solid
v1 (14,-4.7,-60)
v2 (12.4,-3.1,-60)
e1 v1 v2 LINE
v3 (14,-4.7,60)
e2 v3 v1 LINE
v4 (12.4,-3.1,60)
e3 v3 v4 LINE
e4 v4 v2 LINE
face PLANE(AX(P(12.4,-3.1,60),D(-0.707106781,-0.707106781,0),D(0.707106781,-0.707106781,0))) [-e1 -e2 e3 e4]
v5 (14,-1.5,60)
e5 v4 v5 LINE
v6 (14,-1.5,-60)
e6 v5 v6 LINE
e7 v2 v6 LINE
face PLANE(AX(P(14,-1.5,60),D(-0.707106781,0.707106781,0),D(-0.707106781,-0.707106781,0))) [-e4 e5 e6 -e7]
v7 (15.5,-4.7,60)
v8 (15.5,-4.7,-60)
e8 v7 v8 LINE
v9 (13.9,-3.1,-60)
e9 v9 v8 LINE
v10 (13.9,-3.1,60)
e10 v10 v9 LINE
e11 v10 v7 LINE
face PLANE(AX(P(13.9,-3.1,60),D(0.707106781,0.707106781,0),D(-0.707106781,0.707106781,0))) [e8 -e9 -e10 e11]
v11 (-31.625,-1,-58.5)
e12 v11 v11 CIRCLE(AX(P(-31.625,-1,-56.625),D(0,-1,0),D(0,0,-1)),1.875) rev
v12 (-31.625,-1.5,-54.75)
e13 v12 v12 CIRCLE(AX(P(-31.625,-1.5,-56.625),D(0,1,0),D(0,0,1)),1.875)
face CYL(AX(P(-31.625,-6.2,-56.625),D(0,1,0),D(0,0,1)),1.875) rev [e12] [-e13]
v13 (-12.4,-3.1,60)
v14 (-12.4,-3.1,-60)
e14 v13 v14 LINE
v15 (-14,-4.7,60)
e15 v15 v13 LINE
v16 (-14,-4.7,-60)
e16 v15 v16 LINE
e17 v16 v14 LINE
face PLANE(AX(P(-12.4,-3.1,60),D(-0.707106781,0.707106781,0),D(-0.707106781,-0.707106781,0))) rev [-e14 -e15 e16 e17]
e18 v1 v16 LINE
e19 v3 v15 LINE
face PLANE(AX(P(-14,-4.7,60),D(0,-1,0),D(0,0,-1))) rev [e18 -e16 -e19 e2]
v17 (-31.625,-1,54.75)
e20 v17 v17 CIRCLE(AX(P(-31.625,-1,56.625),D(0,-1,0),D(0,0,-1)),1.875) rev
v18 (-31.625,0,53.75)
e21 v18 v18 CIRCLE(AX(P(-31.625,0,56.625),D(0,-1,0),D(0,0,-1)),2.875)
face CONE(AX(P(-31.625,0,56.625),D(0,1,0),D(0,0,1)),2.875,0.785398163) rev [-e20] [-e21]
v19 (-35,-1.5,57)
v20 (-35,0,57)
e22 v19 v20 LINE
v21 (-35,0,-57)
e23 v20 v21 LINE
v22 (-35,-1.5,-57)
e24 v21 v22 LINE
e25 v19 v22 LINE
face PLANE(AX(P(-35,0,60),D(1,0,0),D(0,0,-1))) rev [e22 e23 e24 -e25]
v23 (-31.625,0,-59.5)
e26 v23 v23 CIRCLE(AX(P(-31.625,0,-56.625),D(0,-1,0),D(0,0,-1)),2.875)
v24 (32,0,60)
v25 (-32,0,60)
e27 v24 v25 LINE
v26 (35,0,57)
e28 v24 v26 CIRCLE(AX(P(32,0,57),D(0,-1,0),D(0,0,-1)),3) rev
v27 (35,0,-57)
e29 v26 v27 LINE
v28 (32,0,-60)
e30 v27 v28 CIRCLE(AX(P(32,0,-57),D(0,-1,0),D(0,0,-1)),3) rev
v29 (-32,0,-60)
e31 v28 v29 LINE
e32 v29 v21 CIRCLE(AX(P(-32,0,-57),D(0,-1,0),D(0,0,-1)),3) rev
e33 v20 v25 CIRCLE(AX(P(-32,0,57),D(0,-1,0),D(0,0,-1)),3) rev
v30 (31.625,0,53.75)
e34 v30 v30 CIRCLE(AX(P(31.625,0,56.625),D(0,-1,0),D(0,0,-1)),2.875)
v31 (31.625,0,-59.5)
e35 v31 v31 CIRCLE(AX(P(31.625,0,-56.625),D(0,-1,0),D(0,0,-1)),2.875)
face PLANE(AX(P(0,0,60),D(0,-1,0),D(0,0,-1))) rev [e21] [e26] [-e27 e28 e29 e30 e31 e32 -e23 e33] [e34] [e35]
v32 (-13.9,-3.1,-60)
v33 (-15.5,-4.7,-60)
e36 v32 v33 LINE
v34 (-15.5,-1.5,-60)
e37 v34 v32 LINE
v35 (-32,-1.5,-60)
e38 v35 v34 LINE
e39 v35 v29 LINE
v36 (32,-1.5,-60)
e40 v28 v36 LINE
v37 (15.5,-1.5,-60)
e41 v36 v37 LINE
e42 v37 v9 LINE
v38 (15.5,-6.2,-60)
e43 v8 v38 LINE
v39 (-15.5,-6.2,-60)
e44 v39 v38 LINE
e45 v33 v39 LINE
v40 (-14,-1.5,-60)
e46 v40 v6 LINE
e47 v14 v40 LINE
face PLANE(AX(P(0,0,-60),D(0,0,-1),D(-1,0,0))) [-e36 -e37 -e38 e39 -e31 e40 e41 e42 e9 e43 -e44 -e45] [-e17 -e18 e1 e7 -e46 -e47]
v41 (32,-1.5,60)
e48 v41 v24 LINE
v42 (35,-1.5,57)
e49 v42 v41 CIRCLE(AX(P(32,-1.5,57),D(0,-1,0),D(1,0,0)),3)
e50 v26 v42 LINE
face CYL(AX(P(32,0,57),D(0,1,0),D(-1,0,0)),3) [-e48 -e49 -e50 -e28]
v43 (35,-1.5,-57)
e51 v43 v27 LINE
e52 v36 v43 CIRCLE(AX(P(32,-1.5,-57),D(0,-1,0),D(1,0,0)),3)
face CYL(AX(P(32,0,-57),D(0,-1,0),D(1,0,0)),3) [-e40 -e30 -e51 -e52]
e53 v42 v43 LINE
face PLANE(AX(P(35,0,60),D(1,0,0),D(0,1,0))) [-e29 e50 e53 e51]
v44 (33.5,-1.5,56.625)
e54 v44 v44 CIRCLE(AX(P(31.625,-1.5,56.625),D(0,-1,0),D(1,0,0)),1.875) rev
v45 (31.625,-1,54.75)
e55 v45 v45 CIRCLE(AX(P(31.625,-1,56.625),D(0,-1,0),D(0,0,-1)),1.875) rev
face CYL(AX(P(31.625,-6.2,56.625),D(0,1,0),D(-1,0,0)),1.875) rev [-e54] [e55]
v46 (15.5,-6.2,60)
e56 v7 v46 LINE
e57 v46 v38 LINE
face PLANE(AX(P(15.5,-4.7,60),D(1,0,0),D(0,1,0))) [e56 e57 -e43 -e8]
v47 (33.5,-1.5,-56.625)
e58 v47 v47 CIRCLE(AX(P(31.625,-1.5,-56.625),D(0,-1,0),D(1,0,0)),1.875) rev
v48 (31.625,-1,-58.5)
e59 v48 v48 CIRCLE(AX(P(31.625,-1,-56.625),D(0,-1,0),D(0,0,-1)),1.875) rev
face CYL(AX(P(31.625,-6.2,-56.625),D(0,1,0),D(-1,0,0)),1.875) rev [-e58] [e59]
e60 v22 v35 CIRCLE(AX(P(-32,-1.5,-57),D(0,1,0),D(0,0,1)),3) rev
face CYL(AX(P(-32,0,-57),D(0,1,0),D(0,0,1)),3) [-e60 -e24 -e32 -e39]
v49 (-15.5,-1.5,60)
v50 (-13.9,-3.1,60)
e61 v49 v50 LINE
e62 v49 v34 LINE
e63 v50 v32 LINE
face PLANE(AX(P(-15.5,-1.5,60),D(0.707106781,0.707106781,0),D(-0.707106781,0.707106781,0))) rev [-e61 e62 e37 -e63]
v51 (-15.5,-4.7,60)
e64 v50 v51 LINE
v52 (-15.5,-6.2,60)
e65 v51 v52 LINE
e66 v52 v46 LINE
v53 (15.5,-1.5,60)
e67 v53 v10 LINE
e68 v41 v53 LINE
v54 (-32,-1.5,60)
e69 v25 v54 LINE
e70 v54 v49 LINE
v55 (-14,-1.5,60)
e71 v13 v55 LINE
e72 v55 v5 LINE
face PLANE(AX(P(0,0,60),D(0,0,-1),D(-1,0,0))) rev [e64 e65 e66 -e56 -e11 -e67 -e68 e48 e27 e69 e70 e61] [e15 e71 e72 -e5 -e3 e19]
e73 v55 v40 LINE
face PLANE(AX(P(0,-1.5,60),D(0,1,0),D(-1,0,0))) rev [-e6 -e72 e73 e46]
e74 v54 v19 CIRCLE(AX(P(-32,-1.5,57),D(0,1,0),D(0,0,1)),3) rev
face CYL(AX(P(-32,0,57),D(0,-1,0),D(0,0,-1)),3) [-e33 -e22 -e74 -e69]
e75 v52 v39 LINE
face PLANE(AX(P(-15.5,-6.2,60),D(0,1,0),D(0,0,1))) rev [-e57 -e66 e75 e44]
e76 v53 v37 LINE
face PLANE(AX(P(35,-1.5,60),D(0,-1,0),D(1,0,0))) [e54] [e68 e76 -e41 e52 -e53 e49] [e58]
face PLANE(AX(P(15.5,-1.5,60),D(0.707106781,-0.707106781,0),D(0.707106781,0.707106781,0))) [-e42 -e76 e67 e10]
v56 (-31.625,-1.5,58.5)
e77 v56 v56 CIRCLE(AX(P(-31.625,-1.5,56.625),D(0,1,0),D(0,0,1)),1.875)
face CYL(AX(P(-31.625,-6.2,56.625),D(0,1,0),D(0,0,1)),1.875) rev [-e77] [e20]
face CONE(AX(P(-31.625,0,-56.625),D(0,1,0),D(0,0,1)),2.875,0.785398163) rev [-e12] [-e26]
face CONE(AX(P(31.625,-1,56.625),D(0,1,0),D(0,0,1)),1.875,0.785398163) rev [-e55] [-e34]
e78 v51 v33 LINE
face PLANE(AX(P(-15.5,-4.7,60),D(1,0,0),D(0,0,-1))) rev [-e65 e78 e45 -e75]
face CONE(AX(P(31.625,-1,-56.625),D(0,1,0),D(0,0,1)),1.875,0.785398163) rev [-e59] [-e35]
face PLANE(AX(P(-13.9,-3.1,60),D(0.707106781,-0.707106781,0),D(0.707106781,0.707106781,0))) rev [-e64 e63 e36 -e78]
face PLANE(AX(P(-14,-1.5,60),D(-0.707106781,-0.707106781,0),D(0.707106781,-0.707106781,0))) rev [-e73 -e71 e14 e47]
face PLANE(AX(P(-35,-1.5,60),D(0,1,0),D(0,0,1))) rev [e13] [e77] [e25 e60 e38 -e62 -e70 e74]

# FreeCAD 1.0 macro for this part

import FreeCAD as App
import Part
import Sketcher

V = App.Vector


def edges_at(feature, points):
    """Names of the edges that pass closest to the given points."""
    edges = feature.Shape.Edges
    near = lambda p: min(range(len(edges)), key=lambda i: edges[i].distToShape(Part.Vertex(*p))[0])
    return sorted({f"Edge{near(p) + 1}" for p in points})


def add_polygon(sketch, points):
    """Adds a closed chain of lines whose ends are joined by coincident constraints."""
    first, n = sketch.GeometryCount, len(points)
    for a, b in zip(points, points[1:] + points[:1]):
        sketch.addGeometry(Part.LineSegment(App.Vector(*a, 0), App.Vector(*b, 0)), False)
    for i in range(n):
        sketch.addConstraint(Sketcher.Constraint("Coincident", first + i, 2, first + (i + 1) % n, 1))

doc = App.newDocument("Part")
params = doc.addObject("Spreadsheet::Sheet", "Params")
for row, (alias, value) in enumerate([
    ("sketch1_width", "35 mm"),
    ("sketch1_width2", "14 mm"),
    ("sketch1_width3", "19.5 mm"),
    ("sketch1_height", "1.5 mm"),
    ("pad1_length", "120 mm"),
    ("sketch2_diameter", "3.75 mm"),
    ("pocket1_length", "8.2 mm"),
    ("chamfer_size", "1 mm"),
    ("fillet_radius", "3 mm"),
], start=1):
    params.set(f"A{row}", alias)
    params.set(f"B{row}", "=" + value)
    params.setAlias(f"B{row}", alias)

body = doc.addObject("PartDesign::Body", "Body")

# Sketch on XY plane
sketch1 = body.newObject("Sketcher::SketchObject", "Sketch")
sketch1.AttachmentSupport = (doc.getObject("XY_Plane"), [""])
sketch1.MapMode = "FlatFace"
add_polygon(sketch1, [(0, 0), (-35, 0), (-35, -1.5), (-15.5, -1.5), (-13.9, -3.1), (-15.5, -4.7), (-15.5, -6.2), (0, -6.2), (0, -4.7), (-14, -4.7), (-12.4, -3.1), (-14, -1.5), (0, -1.5)])  # lines 0-12
sketch1.addConstraint([
    Sketcher.Constraint("Horizontal", 0),
    Sketcher.Constraint("Vertical", 1),
    Sketcher.Constraint("Horizontal", 2),
    Sketcher.Constraint("Vertical", 5),
    Sketcher.Constraint("Horizontal", 6),
    Sketcher.Constraint("Vertical", 7),
    Sketcher.Constraint("Horizontal", 8),
    Sketcher.Constraint("Horizontal", 11),
    Sketcher.Constraint("Vertical", 12),
    Sketcher.Constraint("Coincident", 12, 2, -1, 1),
    Sketcher.Constraint("PointOnObject", 6, 2, -2),
    Sketcher.Constraint("Perpendicular", 3, 4),
    Sketcher.Constraint("Parallel", 4, 9),
    Sketcher.Constraint("Perpendicular", 9, 10),
    Sketcher.Constraint("Horizontal", 4, 2, 7, 2),
    Sketcher.Constraint("Horizontal", 3, 2, 9, 2),
    Sketcher.Constraint("Horizontal", 2, 2, 10, 2),
    Sketcher.Constraint("Vertical", 2, 2, 4, 2),
    Sketcher.Constraint("Equal", 1, 5),
    Sketcher.Constraint("Equal", 3, 4),
    Sketcher.Constraint("DistanceX", 0, 2, 0, 1, 35.0),
    Sketcher.Constraint("DistanceX", 8, 2, 8, 1, 14.0),
    Sketcher.Constraint("DistanceX", 2, 1, 2, 2, 19.5),
    Sketcher.Constraint("DistanceY", 1, 2, 1, 1, 1.5),
    Sketcher.Constraint("DistanceX", 3, 2, -1, 1, 13.9),
])
sketch1.setExpression("Constraints[33]", "Params.sketch1_width")
sketch1.setExpression("Constraints[34]", "Params.sketch1_width2")
sketch1.setExpression("Constraints[35]", "Params.sketch1_width3")
sketch1.setExpression("Constraints[36]", "Params.sketch1_height")
pad1 = body.newObject("PartDesign::Pad", "Pad")
pad1.Profile = sketch1
pad1.setExpression("Length", "Params.pad1_length")
pad1.Midplane = True

# Sketch on XZ plane
sketch2 = body.newObject("Sketcher::SketchObject", "Sketch001")
sketch2.AttachmentSupport = (doc.getObject("XZ_Plane"), [""])
sketch2.MapMode = "FlatFace"
sketch2.AttachmentOffset = App.Placement(V(0, 0, 7.2), App.Rotation())
sketch2.addGeometry([
    Part.Circle(V(-31.625, -56.625, 0), V(0, 0, 1), 1.875),
    Part.Circle(V(-31.625, 56.625, 0), V(0, 0, 1), 1.875),
], False)
sketch2.addConstraint([
    Sketcher.Constraint("Equal", 0, 1),
    Sketcher.Constraint("Symmetric", 0, 3, 1, 3, -1),
    Sketcher.Constraint("Diameter", 0, 3.75),
    Sketcher.Constraint("DistanceY", 0, 3, 1, 3, 113.25),
    Sketcher.Constraint("DistanceX", 0, 3, -1, 1, 31.625),
])
sketch2.setExpression("Constraints[2]", "Params.sketch2_diameter")
pocket1 = body.newObject("PartDesign::Pocket", "Pocket")
pocket1.Profile = sketch2
pocket1.setExpression("Length", "Params.pocket1_length")
doc.recompute()

mirrored = body.newObject("PartDesign::Mirrored", "Mirrored")
mirrored.Originals = [pad1, pocket1]
mirrored.MirrorPlane = (doc.getObject("YZ_Plane"), [""])
body.Tip = mirrored
doc.recompute()

chamfer = body.newObject("PartDesign::Chamfer", "Chamfer")
chamfer.Base = (mirrored, edges_at(mirrored, [
    (-33.5, 0, -56.625),
    (-33.5, 0, 56.625),
    (33.5, 0, -56.625),
    (33.5, 0, 56.625),
]))
chamfer.setExpression("Size", "Params.chamfer_size")
doc.recompute()

fillet = body.newObject("PartDesign::Fillet", "Fillet")
fillet.Base = (chamfer, edges_at(chamfer, [
    (-35, -0.75, 60),
    (-35, -0.75, -60),
    (35, -0.75, 60),
    (35, -0.75, -60),
]))
fillet.setExpression("Radius", "Params.fillet_radius")

doc.recompute()
